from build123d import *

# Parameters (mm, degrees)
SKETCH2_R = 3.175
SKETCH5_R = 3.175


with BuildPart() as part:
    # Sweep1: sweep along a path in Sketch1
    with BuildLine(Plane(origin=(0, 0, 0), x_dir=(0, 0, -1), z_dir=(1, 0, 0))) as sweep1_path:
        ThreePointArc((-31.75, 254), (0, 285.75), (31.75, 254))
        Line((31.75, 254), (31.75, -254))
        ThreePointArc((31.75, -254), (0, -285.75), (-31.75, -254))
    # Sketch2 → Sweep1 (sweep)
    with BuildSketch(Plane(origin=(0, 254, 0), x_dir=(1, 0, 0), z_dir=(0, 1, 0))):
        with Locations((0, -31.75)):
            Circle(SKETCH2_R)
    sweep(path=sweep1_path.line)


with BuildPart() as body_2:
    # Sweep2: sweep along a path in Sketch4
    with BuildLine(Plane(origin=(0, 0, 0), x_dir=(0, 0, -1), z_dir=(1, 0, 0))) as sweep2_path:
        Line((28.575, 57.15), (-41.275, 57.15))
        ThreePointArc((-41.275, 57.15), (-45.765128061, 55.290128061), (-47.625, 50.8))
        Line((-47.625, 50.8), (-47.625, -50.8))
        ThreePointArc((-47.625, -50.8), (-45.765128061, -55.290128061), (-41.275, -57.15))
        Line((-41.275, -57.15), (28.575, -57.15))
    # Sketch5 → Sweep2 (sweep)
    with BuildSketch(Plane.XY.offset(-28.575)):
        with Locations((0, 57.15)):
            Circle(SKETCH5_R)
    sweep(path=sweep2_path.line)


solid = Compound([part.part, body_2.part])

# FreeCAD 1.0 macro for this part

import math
import FreeCAD as App
import Part
import Sketcher

V = App.Vector
Q = App.Units.Quantity

doc = App.newDocument("Part")
body = doc.addObject("PartDesign::Body", "Body")

# Sketch on XZ plane
sketch1 = body.newObject("Sketcher::SketchObject", "Sketch")
sketch1.AttachmentSupport = (doc.getObject("XZ_Plane"), [""])
sketch1.MapMode = "FlatFace"
sketch1.AttachmentOffset = App.Placement(V(0, 0, -10 * 25.4), App.Rotation())
sketch1.addGeometry(Part.Circle(V(0, 31.8, 0), V(0, 0, 1), 3.2), False)
sketch1.addConstraint([
    Sketcher.Constraint("PointOnObject", 0, 3, -2),
    Sketcher.Constraint("Diameter", 0, Q("0.25 in")),
    Sketcher.Constraint("DistanceY", -1, 1, 0, 3, Q("1.25 in")),
])

# Sketch on YZ plane
sketch2 = body.newObject("Sketcher::SketchObject", "Sketch001")
sketch2.AttachmentSupport = (doc.getObject("YZ_Plane"), [""])
sketch2.MapMode = "FlatFace"
sketch2.addGeometry([
    Part.ArcOfCircle(Part.Circle(V(254, 0, 0), V(0, 0, 1), 32), math.radians(-90), math.radians(90)),
    Part.LineSegment(V(254, -32, 0), V(-254, -32, 0)),
    Part.ArcOfCircle(Part.Circle(V(-254, 0, 0), V(0, 0, 1), 32), math.radians(90), math.radians(270)),
], False)
sketch2.addConstraint([
    Sketcher.Constraint("Tangent", 0, 1, 1, 1),
    Sketcher.Constraint("Tangent", 1, 2, 2, 2),
    Sketcher.Constraint("Horizontal", 1),
    Sketcher.Constraint("Equal", 0, 2),
    Sketcher.Constraint("Symmetric", 0, 3, 2, 3, -1, 1),
    Sketcher.Constraint("Vertical", 1, 2, 2, 1),
    Sketcher.Constraint("DistanceX", 1, 2, 1, 1, Q("20 in")),
    Sketcher.Constraint("Radius", 0, Q("1.25 in")),
    Sketcher.Constraint("DistanceX", -1, 1, 0, 2, Q("10 in")),
])
doc.recompute()

additivepipe = body.newObject("PartDesign::AdditivePipe", "AdditivePipe")
additivepipe.Profile = sketch1
additivepipe.Spine = (sketch2, ["Edge1", "Edge2", "Edge3"])
body2 = doc.addObject("PartDesign::Body", "Body001")

# Sketch on XY plane
sketch3 = body2.newObject("Sketcher::SketchObject", "Sketch002")
sketch3.AttachmentSupport = (doc.getObject("XY_Plane001"), [""])
sketch3.MapMode = "FlatFace"
sketch3.AttachmentOffset = App.Placement(V(0, 0, -1.125 * 25.4), App.Rotation())
sketch3.addGeometry(Part.Circle(V(0, 57.1, 0), V(0, 0, 1), 3.2), False)
sketch3.addConstraint([
    Sketcher.Constraint("PointOnObject", 0, 3, -2),
    Sketcher.Constraint("Diameter", 0, Q("0.25 in")),
    Sketcher.Constraint("DistanceY", -1, 1, 0, 3, Q("2.25 in")),
])

# Sketch on YZ plane
sketch4 = body2.newObject("Sketcher::SketchObject", "Sketch003")
sketch4.AttachmentSupport = (doc.getObject("YZ_Plane001"), [""])
sketch4.MapMode = "FlatFace"
sketch4.addGeometry([
    Part.LineSegment(V(57, -29, 0), V(57, 41, 0)),  # 0
    Part.ArcOfCircle(Part.Circle(V(51, 41, 0), V(0, 0, 1), 6), math.radians(0), math.radians(90)),  # 1
    Part.LineSegment(V(51, 48, 0), V(-51, 48, 0)),  # 2
    Part.ArcOfCircle(Part.Circle(V(-51, 41, 0), V(0, 0, 1), 6), math.radians(90), math.radians(180)),  # 3
    Part.LineSegment(V(-57, 41, 0), V(-57, -29, 0)),  # 4
], False)
sketch4.addConstraint([
    Sketcher.Constraint("Tangent", 0, 2, 1, 1),
    Sketcher.Constraint("Tangent", 1, 2, 2, 1),
    Sketcher.Constraint("Tangent", 2, 2, 3, 1),
    Sketcher.Constraint("Tangent", 3, 2, 4, 1),
    Sketcher.Constraint("Vertical", 0),
    Sketcher.Constraint("Horizontal", 2),
    Sketcher.Constraint("Vertical", 4),
    Sketcher.Constraint("Equal", 1, 3),
    Sketcher.Constraint("Symmetric", 0, 1, 4, 2, -2),
    Sketcher.Constraint("DistanceX", 2, 2, 2, 1, Q("4 in")),
    Sketcher.Constraint("Radius", 1, Q("0.25 in")),
    Sketcher.Constraint("DistanceY", 0, 1, 1, 2, Q("3 in")),
    Sketcher.Constraint("DistanceY", -1, 1, 1, 3, Q("1.625 in")),
])
doc.recompute()

additivepipe2 = body2.newObject("PartDesign::AdditivePipe", "AdditivePipe001")
additivepipe2.Profile = sketch3
additivepipe2.Spine = (sketch4, ["Edge1", "Edge2", "Edge3", "Edge4", "Edge5"])

doc.recompute()
